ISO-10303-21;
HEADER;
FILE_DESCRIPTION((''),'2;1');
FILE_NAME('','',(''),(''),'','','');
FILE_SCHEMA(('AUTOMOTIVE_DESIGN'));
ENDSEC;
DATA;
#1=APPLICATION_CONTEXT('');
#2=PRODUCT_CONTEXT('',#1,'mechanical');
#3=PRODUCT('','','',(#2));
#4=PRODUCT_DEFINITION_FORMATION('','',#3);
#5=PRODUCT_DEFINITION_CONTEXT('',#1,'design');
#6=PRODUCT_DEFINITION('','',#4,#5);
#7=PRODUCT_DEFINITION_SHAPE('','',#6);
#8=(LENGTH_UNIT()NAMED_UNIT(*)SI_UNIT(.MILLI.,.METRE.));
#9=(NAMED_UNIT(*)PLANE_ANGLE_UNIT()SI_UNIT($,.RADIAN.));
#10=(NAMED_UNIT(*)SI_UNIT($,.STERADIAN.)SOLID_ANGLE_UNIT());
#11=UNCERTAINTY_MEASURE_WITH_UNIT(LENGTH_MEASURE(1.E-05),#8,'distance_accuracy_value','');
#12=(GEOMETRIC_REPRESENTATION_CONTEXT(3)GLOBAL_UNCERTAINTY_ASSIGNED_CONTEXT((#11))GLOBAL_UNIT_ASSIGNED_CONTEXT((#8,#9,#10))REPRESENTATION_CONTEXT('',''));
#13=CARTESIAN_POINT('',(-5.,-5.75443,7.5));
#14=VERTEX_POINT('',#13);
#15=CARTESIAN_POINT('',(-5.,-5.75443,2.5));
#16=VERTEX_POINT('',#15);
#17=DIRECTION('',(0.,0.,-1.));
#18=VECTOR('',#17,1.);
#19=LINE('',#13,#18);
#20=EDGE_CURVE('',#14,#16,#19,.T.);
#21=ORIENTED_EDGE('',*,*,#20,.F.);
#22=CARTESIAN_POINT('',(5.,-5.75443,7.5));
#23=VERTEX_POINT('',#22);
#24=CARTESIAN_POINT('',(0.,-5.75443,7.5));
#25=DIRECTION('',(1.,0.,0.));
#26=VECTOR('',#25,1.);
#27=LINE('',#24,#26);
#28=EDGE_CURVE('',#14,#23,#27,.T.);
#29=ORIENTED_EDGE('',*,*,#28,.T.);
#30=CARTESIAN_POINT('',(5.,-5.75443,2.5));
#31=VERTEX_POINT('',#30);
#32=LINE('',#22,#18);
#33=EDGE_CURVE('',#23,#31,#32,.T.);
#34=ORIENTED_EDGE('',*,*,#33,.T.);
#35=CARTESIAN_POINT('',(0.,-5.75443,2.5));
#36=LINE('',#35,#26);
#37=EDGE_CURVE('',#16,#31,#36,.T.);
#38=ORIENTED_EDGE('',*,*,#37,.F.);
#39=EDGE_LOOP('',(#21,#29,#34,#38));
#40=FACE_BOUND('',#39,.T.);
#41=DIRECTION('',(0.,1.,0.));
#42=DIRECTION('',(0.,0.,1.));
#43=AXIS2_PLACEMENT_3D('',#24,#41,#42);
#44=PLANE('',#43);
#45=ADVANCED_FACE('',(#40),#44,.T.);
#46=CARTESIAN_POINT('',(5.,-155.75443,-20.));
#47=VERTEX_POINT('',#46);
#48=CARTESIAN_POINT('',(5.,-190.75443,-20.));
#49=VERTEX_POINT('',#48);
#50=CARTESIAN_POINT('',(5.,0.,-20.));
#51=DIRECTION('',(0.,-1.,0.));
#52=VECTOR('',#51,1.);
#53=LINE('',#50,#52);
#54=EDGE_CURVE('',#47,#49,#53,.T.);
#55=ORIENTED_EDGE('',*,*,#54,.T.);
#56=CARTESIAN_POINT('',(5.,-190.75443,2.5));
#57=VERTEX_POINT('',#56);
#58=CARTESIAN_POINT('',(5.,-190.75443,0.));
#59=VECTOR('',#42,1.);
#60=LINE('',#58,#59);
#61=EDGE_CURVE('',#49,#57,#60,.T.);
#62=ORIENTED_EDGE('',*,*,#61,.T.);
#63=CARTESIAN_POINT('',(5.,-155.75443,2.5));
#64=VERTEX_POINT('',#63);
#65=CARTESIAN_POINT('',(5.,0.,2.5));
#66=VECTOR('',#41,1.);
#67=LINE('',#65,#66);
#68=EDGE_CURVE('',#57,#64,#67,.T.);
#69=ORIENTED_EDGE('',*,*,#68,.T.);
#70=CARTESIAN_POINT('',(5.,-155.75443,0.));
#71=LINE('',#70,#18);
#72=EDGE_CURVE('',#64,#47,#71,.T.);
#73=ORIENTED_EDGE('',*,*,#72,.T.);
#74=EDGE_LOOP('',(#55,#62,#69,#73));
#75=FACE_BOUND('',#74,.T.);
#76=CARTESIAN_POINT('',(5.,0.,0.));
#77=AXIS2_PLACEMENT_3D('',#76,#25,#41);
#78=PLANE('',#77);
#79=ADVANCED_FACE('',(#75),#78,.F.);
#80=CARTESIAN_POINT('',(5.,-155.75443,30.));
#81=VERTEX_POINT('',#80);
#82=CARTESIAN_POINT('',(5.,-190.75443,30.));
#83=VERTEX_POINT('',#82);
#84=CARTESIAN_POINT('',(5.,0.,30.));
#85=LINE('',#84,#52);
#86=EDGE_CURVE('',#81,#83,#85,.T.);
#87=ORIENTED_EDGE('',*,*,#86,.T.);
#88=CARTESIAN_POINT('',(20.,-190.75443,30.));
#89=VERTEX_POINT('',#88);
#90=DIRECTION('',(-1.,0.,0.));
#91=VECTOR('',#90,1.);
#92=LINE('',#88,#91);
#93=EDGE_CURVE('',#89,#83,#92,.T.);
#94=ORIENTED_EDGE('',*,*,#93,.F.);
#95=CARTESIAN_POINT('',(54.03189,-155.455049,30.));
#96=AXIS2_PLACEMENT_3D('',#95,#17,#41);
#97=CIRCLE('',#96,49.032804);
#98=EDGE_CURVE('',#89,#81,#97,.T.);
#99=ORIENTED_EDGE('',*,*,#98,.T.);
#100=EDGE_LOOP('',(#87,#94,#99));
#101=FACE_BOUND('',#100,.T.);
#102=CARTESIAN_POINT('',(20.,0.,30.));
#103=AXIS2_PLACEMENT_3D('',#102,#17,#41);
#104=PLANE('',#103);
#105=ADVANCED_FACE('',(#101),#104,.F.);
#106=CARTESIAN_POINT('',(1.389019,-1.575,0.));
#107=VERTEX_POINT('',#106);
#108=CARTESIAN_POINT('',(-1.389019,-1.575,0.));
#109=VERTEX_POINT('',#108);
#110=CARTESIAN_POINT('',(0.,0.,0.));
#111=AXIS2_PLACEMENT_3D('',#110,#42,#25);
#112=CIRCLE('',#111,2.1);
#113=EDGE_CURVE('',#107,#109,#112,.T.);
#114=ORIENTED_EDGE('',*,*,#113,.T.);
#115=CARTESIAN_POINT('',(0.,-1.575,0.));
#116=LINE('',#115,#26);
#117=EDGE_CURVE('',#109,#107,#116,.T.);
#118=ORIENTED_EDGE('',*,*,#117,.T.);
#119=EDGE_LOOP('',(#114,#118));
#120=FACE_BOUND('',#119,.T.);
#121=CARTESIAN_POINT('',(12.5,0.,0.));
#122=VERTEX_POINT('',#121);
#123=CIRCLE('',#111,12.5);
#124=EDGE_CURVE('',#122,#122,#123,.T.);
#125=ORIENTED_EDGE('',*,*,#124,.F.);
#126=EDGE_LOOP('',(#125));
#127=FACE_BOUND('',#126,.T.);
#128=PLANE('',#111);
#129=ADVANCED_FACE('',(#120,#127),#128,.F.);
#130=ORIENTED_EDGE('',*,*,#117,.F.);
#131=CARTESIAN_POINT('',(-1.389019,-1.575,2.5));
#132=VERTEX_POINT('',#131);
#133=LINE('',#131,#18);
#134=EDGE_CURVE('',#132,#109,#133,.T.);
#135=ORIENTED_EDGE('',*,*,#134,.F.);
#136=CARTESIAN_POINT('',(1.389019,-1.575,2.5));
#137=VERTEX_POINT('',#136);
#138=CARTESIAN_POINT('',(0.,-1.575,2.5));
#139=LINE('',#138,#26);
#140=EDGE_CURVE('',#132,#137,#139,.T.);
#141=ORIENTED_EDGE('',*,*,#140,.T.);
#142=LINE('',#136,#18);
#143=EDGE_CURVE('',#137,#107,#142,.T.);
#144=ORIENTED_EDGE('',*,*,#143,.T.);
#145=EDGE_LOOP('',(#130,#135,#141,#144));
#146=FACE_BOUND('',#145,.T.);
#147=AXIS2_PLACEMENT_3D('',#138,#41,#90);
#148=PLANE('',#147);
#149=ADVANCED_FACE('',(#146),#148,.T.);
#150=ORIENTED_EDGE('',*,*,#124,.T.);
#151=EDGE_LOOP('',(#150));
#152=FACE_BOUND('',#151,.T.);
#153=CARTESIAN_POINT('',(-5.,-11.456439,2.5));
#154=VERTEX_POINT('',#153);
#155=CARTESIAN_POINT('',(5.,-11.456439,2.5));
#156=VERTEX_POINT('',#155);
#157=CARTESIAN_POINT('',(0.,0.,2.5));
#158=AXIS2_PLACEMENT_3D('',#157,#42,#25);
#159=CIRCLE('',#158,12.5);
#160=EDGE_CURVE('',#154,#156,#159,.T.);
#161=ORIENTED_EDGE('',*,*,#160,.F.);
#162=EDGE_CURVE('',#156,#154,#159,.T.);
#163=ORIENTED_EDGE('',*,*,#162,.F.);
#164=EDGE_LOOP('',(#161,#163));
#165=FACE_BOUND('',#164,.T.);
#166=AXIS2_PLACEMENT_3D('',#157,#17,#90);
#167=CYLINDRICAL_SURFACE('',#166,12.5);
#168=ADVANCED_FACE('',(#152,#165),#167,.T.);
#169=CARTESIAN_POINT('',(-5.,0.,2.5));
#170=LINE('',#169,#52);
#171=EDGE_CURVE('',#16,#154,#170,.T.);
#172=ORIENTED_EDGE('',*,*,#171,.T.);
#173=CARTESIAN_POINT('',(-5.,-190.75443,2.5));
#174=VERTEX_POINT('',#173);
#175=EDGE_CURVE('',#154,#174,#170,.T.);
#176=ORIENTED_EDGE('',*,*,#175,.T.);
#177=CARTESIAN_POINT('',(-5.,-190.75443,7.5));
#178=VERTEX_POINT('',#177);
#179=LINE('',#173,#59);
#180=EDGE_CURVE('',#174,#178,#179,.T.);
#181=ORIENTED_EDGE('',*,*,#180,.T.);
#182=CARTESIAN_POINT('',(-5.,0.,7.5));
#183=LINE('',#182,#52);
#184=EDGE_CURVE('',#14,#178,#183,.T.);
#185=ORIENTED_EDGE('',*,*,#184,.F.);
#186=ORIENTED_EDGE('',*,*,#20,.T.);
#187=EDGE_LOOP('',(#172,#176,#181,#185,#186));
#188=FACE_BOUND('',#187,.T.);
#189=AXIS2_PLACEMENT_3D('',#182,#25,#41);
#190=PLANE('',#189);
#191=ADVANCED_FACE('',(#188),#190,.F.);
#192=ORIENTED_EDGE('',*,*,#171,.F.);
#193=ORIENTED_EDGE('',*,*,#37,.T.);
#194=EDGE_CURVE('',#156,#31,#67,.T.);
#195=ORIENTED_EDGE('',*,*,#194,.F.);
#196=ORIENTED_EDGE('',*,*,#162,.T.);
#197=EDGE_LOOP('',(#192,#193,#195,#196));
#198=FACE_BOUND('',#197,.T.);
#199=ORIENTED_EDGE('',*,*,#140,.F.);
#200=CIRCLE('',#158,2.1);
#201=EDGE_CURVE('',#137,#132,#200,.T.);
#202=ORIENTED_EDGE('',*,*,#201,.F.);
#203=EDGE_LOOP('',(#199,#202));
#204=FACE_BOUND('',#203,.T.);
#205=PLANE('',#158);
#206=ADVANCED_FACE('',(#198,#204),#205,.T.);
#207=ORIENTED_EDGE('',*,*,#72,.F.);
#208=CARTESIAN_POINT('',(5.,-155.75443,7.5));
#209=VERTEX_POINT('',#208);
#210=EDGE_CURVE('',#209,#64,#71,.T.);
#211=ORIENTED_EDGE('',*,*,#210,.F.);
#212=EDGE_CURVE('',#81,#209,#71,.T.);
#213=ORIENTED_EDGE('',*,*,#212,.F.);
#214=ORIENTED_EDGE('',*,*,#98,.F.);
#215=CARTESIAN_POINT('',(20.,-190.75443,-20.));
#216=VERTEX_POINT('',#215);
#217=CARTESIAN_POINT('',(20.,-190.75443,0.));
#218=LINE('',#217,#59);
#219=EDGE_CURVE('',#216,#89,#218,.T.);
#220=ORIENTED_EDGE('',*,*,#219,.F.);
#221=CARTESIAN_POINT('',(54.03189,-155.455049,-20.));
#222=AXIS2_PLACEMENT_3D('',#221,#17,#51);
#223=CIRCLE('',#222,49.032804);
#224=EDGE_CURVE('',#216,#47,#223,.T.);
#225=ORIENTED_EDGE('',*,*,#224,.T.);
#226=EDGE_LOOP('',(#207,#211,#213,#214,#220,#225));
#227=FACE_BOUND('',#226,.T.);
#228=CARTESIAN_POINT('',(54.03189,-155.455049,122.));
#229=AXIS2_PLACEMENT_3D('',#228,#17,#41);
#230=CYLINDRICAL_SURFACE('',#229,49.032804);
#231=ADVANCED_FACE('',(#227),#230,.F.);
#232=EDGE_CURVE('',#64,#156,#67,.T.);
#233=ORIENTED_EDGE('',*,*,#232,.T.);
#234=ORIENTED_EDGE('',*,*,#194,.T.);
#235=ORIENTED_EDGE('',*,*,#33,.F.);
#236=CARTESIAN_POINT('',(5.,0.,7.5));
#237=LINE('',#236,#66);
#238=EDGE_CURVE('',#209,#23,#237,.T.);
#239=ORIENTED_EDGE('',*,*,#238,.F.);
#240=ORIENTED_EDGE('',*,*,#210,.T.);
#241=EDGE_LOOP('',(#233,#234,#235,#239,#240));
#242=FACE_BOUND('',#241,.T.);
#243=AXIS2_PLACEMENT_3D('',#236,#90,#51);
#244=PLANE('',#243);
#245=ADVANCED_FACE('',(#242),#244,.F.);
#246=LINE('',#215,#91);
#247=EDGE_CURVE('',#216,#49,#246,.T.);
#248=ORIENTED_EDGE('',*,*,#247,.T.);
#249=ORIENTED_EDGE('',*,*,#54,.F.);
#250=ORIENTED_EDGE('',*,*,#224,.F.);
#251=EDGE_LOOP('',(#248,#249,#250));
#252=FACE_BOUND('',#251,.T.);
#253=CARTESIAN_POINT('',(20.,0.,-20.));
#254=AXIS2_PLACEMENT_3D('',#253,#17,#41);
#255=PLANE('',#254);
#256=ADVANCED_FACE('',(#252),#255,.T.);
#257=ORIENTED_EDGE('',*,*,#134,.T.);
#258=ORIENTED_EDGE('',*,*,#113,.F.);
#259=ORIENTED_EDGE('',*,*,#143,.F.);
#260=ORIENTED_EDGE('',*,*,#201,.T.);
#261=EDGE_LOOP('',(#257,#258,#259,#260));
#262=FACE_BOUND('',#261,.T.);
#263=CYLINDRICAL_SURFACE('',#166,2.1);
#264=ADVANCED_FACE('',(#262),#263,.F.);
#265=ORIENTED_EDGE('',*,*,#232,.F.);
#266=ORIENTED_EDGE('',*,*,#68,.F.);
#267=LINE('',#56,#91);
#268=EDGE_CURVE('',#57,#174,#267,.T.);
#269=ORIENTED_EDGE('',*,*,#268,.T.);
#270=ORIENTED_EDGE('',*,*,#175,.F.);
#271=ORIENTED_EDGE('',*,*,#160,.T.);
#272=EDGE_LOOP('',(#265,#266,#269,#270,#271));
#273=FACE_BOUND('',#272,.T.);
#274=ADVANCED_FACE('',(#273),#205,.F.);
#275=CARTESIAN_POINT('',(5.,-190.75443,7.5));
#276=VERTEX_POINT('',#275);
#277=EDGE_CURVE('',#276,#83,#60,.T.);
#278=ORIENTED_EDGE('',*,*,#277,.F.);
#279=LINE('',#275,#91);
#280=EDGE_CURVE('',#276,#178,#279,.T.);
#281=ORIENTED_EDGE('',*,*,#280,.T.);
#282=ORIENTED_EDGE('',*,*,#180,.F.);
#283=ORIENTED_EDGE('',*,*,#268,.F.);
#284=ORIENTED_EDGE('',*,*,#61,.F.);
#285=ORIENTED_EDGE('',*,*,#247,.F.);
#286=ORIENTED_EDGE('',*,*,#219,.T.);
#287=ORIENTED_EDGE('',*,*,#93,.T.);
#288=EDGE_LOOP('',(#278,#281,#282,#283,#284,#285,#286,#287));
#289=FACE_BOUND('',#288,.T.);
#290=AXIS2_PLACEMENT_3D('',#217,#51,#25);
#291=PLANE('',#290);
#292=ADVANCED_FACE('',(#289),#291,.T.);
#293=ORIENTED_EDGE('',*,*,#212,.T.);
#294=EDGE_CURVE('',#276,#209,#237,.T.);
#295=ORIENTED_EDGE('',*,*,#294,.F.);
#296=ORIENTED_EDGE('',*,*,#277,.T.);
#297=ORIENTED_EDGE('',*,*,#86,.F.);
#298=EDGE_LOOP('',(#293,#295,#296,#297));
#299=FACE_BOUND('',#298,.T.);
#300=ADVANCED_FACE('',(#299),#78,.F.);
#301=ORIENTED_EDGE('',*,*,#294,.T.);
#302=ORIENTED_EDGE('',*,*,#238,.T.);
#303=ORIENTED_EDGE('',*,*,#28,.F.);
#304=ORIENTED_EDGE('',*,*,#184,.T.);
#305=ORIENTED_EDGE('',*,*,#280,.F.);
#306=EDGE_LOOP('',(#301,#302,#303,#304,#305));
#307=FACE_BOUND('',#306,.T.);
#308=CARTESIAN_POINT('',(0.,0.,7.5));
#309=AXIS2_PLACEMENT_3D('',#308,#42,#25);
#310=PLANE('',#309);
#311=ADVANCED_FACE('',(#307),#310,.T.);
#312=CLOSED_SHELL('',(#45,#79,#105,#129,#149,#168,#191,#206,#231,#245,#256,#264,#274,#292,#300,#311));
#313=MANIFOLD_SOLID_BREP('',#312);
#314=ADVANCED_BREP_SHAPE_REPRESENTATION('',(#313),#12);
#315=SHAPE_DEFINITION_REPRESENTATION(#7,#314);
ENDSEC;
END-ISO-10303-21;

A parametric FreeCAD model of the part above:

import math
import FreeCAD as App
import Part
import Sketcher
from FreeCAD import Vector
Q = App.Units.Quantity


def add_polygon(sketch, points):
    """Adds a closed chain of lines whose ends are joined by coincident constraints."""
    first, n = sketch.GeometryCount, len(points)
    for a, b in zip(points, points[1:] + points[:1]):
        sketch.addGeometry(Part.LineSegment(App.Vector(*a, 0), App.Vector(*b, 0)), False)
    for i in range(n):
        sketch.addConstraint(Sketcher.Constraint("Coincident", first + i, 2, first + (i + 1) % n, 1))

doc = App.newDocument("Part")
body = doc.addObject("PartDesign::Body", "Body")

# Sketch on XY plane
sketch1 = doc.addObject("Sketcher::SketchObject", "Sketch")
body.addObject(sketch1)
sketch1.AttachmentSupport = (doc.XY_Plane, [""])
sketch1.MapMode = "FlatFace"
sketch1.addGeometry([
    Part.Circle(Vector(0, 0, 0), Vector(0, 0, 1), 12.5),
    Part.ArcOfCircle(Part.Circle(Vector(0, 0, 0), Vector(0, 0, 1), 2.1), math.radians(-49), math.radians(229)),
    Part.LineSegment(Vector(1.4, -1.6, 0), Vector(-1.4, -1.6, 0)),
], False)
sketch1.addConstraint([
    Sketcher.Constraint("Coincident", 1, 1, 2, 1),
    Sketcher.Constraint("Coincident", 2, 2, 1, 2),
    Sketcher.Constraint("Horizontal", 2),
    Sketcher.Constraint("Coincident", 0, 3, -1, 1),
    Sketcher.Constraint("Coincident", 1, 3, -1, 1),
    Sketcher.Constraint("Diameter", 0, Q("25 mm")),
    Sketcher.Constraint("Radius", 1, Q("2.1 mm")),
    Sketcher.Constraint("DistanceY", 1, 1, -1, 1, Q("1.575 mm")),
])
pad1 = doc.addObject("PartDesign::Pad", "Pad")
body.addObject(pad1)
pad1.Profile = sketch1
pad1.Length = 2.5

# Sketch on XY plane
sketch2 = doc.addObject("Sketcher::SketchObject", "Sketch001")
body.addObject(sketch2)
sketch2.AttachmentSupport = (doc.XY_Plane, [""])
sketch2.MapMode = "FlatFace"
sketch2.AttachmentOffset = App.Placement(Vector(0, 0, 2.5), App.Rotation())
add_polygon(sketch2, [(-5, -166), (5, -166), (5, -6), (-5, -6)])  # lines 0-3
sketch2.addConstraint([
    Sketcher.Constraint("Horizontal", 0),
    Sketcher.Constraint("Vertical", 1),
    Sketcher.Constraint("Horizontal", 2),
    Sketcher.Constraint("Vertical", 3),
    Sketcher.Constraint("DistanceX", 0, 1, 0, 2, Q("10 mm")),
    Sketcher.Constraint("DistanceY", 1, 1, 1, 2, Q("160 mm")),
    Sketcher.Constraint("DistanceX", -1, 1, 0, 2, Q("5 mm")),
    Sketcher.Constraint("DistanceY", 0, 2, -1, 1, Q("165.75443 mm")),
])
pad2 = doc.addObject("PartDesign::Pad", "Pad001")
body.addObject(pad2)
pad2.Profile = sketch2
pad2.Length = 5

# Sketch on YZ plane
sketch3 = doc.addObject("Sketcher::SketchObject", "Sketch002")
body.addObject(sketch3)
sketch3.AttachmentSupport = (doc.YZ_Plane, [""])
sketch3.MapMode = "FlatFace"
sketch3.AttachmentOffset = App.Placement(Vector(0, 0, 5), App.Rotation())
add_polygon(sketch3, [(-156, -20), (-156, 30), (-191, 30), (-191, -20)])  # lines 0-3
sketch3.addConstraint([
    Sketcher.Constraint("Vertical", 0),
    Sketcher.Constraint("Horizontal", 1),
    Sketcher.Constraint("Vertical", 2),
    Sketcher.Constraint("Horizontal", 3),
    Sketcher.Constraint("DistanceX", 1, 2, 1, 1, Q("35 mm")),
    Sketcher.Constraint("DistanceY", 0, 1, 0, 2, Q("50 mm")),
    Sketcher.Constraint("DistanceY", -1, 1, 0, 2, Q("30 mm")),
    Sketcher.Constraint("DistanceX", 0, 2, -1, 1, Q("155.75443 mm")),
])
pad3 = doc.addObject("PartDesign::Pad", "Pad002")
body.addObject(pad3)
pad3.Profile = sketch3
pad3.Length = 15

# Sketch on YZ plane
sketch4 = doc.addObject("Sketcher::SketchObject", "Sketch003")
body.addObject(sketch4)
sketch4.AttachmentSupport = (doc.YZ_Plane, [""])
sketch4.MapMode = "FlatFace"
sketch4.AttachmentOffset = App.Placement(Vector(0, 0, -5), App.Rotation())
add_polygon(sketch4, [(-166, 2), (-191, 2), (-191, 8), (-166, 8)])  # lines 0-3
sketch4.addConstraint([
    Sketcher.Constraint("Horizontal", 0),
    Sketcher.Constraint("Vertical", 1),
    Sketcher.Constraint("Horizontal", 2),
    Sketcher.Constraint("Vertical", 3),
    Sketcher.Constraint("DistanceX", 0, 2, 0, 1, Q("25 mm")),
    Sketcher.Constraint("DistanceY", 1, 1, 1, 2, Q("5 mm")),
    Sketcher.Constraint("DistanceY", -1, 1, 0, 2, Q("2.5 mm")),
    Sketcher.Constraint("DistanceX", 0, 2, -1, 1, Q("190.75443 mm")),
])
pad4 = doc.addObject("PartDesign::Pad", "Pad003")
body.addObject(pad4)
pad4.Profile = sketch4
pad4.Length = 10

# Sketch on XY plane
sketch5 = doc.addObject("Sketcher::SketchObject", "Sketch004")
body.addObject(sketch5)
sketch5.AttachmentSupport = (doc.XY_Plane, [""])
sketch5.MapMode = "FlatFace"
sketch5.AttachmentOffset = App.Placement(Vector(0, 0, -20), App.Rotation())
sketch5.addGeometry([
    Part.LineSegment(Vector(5, -156, 0), Vector(20, -156, 0)),
    Part.LineSegment(Vector(20, -156, 0), Vector(20, -191, 0)),
    Part.ArcOfCircle(Part.Circle(Vector(54, -155, 0), Vector(0, 0, 1), 49), math.radians(-180), math.radians(-134)),
], False)
sketch5.addConstraint([
    Sketcher.Constraint("Coincident", 0, 2, 1, 1),
    Sketcher.Constraint("Coincident", 1, 2, 2, 2),
    Sketcher.Constraint("Coincident", 2, 1, 0, 1),
    Sketcher.Constraint("Horizontal", 0),
    Sketcher.Constraint("Vertical", 1),
    Sketcher.Constraint("DistanceX", 0, 1, 0, 2, Q("15 mm")),
    Sketcher.Constraint("DistanceY", 1, 2, 1, 1, Q("35 mm")),
    Sketcher.Constraint("DistanceX", -1, 1, 0, 2, Q("20 mm")),
    Sketcher.Constraint("Radius", 2, Q("49.032804 mm")),
    Sketcher.Constraint("DistanceY", 2, 3, -1, 1, Q("155.455049 mm")),
])
pocket1 = doc.addObject("PartDesign::Pocket", "Pocket")
body.addObject(pocket1)
pocket1.Profile = sketch5
pocket1.Length = 142
pocket1.Reversed = True

doc.recompute()
